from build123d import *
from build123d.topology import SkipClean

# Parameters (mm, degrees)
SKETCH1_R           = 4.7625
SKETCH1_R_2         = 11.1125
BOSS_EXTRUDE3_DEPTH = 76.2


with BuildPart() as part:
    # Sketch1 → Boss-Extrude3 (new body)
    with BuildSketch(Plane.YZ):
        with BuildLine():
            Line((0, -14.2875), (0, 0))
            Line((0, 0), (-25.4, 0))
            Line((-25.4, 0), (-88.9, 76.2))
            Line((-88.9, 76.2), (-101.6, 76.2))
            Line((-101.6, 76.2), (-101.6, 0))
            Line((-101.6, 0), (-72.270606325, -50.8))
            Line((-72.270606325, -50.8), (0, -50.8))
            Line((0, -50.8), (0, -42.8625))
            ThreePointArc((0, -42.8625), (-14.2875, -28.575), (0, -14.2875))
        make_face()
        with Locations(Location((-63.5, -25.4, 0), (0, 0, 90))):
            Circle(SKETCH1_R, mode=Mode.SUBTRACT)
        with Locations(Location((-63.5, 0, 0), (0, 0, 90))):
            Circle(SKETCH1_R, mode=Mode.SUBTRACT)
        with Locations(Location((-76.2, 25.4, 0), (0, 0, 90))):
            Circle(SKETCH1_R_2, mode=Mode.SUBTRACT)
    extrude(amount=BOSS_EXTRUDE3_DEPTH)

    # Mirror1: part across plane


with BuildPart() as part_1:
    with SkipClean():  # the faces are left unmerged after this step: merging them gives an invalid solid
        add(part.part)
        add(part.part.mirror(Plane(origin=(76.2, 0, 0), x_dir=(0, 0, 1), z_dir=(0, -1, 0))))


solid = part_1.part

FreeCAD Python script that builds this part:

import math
import FreeCAD as App
import Part
import Sketcher
Q = App.Units.Quantity

doc = App.newDocument("Part")
body = doc.addObject("PartDesign::Body", "Body")

sketch1 = body.newObject("Sketcher::SketchObject", "Sketch")
sketch1.AttachmentSupport = (doc.getObject("YZ_Plane"), [""])
sketch1.MapMode = "FlatFace"
sketch1.addGeometry(Part.LineSegment(App.Vector(0, -14.3, 0), App.Vector(0, 0, 0)), False)
sketch1.addGeometry(Part.LineSegment(App.Vector(0, 0, 0), App.Vector(-25.4, 0, 0)), False)
sketch1.addGeometry(Part.LineSegment(App.Vector(-25.4, 0, 0), App.Vector(-88.9, 76.2, 0)), False)
sketch1.addGeometry(Part.LineSegment(App.Vector(-88.9, 76.2, 0), App.Vector(-101.6, 76.2, 0)), False)
sketch1.addGeometry(Part.LineSegment(App.Vector(-101.6, 76.2, 0), App.Vector(-101.6, 0, 0)), False)
sketch1.addGeometry(Part.LineSegment(App.Vector(-101.6, 0, 0), App.Vector(-72.3, -50.8, 0)), False)
sketch1.addGeometry(Part.LineSegment(App.Vector(-72.3, -50.8, 0), App.Vector(0, -50.8, 0)), False)
sketch1.addGeometry(Part.LineSegment(App.Vector(0, -50.8, 0), App.Vector(0, -42.9, 0)), False)
sketch1.addGeometry(Part.ArcOfCircle(Part.Circle(App.Vector(0, -28.6, 0), App.Vector(0, 0, 1), 14.3), math.radians(90), math.radians(270)), False)
sketch1.addGeometry(Part.Circle(App.Vector(-63.5, -25.4, 0), App.Vector(0, 0, 1), 4.8), False)
sketch1.addGeometry(Part.Circle(App.Vector(-63.5, 0, 0), App.Vector(0, 0, 1), 4.8), False)
sketch1.addGeometry(Part.Circle(App.Vector(-76.2, 25.4, 0), App.Vector(0, 0, 1), 11.1), False)
sketch1.addConstraint(Sketcher.Constraint("Coincident", 0, 2, 1, 1))
sketch1.addConstraint(Sketcher.Constraint("Coincident", 1, 2, 2, 1))
sketch1.addConstraint(Sketcher.Constraint("Coincident", 2, 2, 3, 1))
sketch1.addConstraint(Sketcher.Constraint("Coincident", 3, 2, 4, 1))
sketch1.addConstraint(Sketcher.Constraint("Coincident", 4, 2, 5, 1))
sketch1.addConstraint(Sketcher.Constraint("Coincident", 5, 2, 6, 1))
sketch1.addConstraint(Sketcher.Constraint("Coincident", 6, 2, 7, 1))
sketch1.addConstraint(Sketcher.Constraint("Coincident", 7, 2, 8, 2))
sketch1.addConstraint(Sketcher.Constraint("Coincident", 8, 1, 0, 1))
sketch1.addConstraint(Sketcher.Constraint("Vertical", 0))
sketch1.addConstraint(Sketcher.Constraint("Horizontal", 1))
sketch1.addConstraint(Sketcher.Constraint("Horizontal", 3))
sketch1.addConstraint(Sketcher.Constraint("Vertical", 4))
sketch1.addConstraint(Sketcher.Constraint("Horizontal", 6))
sketch1.addConstraint(Sketcher.Constraint("Vertical", 7))
sketch1.addConstraint(Sketcher.Constraint("Coincident", 0, 2, -1, 1))
sketch1.addConstraint(Sketcher.Constraint("Equal", 9, 10))
sketch1.addConstraint(Sketcher.Constraint("PointOnObject", 8, 3, -2))
sketch1.addConstraint(Sketcher.Constraint("PointOnObject", 10, 3, -1))
sketch1.addConstraint(Sketcher.Constraint("PointOnObject", 4, 2, -1))
sketch1.addConstraint(Sketcher.Constraint("PointOnObject", 6, 2, -2))
sketch1.addConstraint(Sketcher.Constraint("Vertical", 9, 3, 10, 3))
sketch1.addConstraint(Sketcher.Constraint("DistanceX", 1, 2, 1, 1, Q("1 in")))
sketch1.addConstraint(Sketcher.Constraint("DistanceY", 4, 2, 4, 1, Q("3 in")))
sketch1.addConstraint(Sketcher.Constraint("Diameter", 9, Q("0.375 in")))
sketch1.addConstraint(Sketcher.Constraint("Diameter", 11, Q("0.875 in")))
sketch1.addConstraint(Sketcher.Constraint("DistanceX", 3, 2, 3, 1, Q("0.5 in")))
sketch1.addConstraint(Sketcher.Constraint("DistanceY", 9, 3, -1, 1, Q("1 in")))
sketch1.addConstraint(Sketcher.Constraint("DistanceX", 11, 3, -1, 1, Q("3 in")))
sketch1.addConstraint(Sketcher.Constraint("DistanceY", -1, 1, 11, 3, Q("1 in")))
sketch1.addConstraint(Sketcher.Constraint("DistanceX", 3, 2, -1, 1, Q("4 in")))
sketch1.addConstraint(Sketcher.Constraint("DistanceY", 5, 2, -1, 1, Q("2 in")))
sketch1.addConstraint(Sketcher.Constraint("Angle", 5, Q("-60 deg")))
sketch1.addConstraint(Sketcher.Constraint("Radius", 8, Q("0.5625 in")))
sketch1.addConstraint(Sketcher.Constraint("DistanceX", 2, 2, 10, 3, Q("1 in")))
sketch1.addConstraint(Sketcher.Constraint("DistanceY", 0, 1, 0, 2, Q("0.5625 in")))
pad1 = body.newObject("PartDesign::Pad", "Pad")
pad1.Profile = sketch1
pad1.Length = Q("3 in")
body2 = doc.addObject("PartDesign::Body", "Body001")
doc.recompute()

body2.BaseFeature = body
doc.recompute()

mirroring = doc.addObject("Part::Mirroring", "Mirroring")
mirroring.Source = body
mirroring.Base = App.Vector(76.2, 0, 0)
mirroring.Normal = App.Vector(0, -1, 0)
body3 = doc.addObject("PartDesign::Body", "Body002")
body3.BaseFeature = mirroring
boolean = body2.newObject("PartDesign::Boolean", "Boolean")
boolean.Type = "Fuse"
boolean.addObjects([body3])
doc.recompute()
mirroring.Visibility = False

doc.recompute()
